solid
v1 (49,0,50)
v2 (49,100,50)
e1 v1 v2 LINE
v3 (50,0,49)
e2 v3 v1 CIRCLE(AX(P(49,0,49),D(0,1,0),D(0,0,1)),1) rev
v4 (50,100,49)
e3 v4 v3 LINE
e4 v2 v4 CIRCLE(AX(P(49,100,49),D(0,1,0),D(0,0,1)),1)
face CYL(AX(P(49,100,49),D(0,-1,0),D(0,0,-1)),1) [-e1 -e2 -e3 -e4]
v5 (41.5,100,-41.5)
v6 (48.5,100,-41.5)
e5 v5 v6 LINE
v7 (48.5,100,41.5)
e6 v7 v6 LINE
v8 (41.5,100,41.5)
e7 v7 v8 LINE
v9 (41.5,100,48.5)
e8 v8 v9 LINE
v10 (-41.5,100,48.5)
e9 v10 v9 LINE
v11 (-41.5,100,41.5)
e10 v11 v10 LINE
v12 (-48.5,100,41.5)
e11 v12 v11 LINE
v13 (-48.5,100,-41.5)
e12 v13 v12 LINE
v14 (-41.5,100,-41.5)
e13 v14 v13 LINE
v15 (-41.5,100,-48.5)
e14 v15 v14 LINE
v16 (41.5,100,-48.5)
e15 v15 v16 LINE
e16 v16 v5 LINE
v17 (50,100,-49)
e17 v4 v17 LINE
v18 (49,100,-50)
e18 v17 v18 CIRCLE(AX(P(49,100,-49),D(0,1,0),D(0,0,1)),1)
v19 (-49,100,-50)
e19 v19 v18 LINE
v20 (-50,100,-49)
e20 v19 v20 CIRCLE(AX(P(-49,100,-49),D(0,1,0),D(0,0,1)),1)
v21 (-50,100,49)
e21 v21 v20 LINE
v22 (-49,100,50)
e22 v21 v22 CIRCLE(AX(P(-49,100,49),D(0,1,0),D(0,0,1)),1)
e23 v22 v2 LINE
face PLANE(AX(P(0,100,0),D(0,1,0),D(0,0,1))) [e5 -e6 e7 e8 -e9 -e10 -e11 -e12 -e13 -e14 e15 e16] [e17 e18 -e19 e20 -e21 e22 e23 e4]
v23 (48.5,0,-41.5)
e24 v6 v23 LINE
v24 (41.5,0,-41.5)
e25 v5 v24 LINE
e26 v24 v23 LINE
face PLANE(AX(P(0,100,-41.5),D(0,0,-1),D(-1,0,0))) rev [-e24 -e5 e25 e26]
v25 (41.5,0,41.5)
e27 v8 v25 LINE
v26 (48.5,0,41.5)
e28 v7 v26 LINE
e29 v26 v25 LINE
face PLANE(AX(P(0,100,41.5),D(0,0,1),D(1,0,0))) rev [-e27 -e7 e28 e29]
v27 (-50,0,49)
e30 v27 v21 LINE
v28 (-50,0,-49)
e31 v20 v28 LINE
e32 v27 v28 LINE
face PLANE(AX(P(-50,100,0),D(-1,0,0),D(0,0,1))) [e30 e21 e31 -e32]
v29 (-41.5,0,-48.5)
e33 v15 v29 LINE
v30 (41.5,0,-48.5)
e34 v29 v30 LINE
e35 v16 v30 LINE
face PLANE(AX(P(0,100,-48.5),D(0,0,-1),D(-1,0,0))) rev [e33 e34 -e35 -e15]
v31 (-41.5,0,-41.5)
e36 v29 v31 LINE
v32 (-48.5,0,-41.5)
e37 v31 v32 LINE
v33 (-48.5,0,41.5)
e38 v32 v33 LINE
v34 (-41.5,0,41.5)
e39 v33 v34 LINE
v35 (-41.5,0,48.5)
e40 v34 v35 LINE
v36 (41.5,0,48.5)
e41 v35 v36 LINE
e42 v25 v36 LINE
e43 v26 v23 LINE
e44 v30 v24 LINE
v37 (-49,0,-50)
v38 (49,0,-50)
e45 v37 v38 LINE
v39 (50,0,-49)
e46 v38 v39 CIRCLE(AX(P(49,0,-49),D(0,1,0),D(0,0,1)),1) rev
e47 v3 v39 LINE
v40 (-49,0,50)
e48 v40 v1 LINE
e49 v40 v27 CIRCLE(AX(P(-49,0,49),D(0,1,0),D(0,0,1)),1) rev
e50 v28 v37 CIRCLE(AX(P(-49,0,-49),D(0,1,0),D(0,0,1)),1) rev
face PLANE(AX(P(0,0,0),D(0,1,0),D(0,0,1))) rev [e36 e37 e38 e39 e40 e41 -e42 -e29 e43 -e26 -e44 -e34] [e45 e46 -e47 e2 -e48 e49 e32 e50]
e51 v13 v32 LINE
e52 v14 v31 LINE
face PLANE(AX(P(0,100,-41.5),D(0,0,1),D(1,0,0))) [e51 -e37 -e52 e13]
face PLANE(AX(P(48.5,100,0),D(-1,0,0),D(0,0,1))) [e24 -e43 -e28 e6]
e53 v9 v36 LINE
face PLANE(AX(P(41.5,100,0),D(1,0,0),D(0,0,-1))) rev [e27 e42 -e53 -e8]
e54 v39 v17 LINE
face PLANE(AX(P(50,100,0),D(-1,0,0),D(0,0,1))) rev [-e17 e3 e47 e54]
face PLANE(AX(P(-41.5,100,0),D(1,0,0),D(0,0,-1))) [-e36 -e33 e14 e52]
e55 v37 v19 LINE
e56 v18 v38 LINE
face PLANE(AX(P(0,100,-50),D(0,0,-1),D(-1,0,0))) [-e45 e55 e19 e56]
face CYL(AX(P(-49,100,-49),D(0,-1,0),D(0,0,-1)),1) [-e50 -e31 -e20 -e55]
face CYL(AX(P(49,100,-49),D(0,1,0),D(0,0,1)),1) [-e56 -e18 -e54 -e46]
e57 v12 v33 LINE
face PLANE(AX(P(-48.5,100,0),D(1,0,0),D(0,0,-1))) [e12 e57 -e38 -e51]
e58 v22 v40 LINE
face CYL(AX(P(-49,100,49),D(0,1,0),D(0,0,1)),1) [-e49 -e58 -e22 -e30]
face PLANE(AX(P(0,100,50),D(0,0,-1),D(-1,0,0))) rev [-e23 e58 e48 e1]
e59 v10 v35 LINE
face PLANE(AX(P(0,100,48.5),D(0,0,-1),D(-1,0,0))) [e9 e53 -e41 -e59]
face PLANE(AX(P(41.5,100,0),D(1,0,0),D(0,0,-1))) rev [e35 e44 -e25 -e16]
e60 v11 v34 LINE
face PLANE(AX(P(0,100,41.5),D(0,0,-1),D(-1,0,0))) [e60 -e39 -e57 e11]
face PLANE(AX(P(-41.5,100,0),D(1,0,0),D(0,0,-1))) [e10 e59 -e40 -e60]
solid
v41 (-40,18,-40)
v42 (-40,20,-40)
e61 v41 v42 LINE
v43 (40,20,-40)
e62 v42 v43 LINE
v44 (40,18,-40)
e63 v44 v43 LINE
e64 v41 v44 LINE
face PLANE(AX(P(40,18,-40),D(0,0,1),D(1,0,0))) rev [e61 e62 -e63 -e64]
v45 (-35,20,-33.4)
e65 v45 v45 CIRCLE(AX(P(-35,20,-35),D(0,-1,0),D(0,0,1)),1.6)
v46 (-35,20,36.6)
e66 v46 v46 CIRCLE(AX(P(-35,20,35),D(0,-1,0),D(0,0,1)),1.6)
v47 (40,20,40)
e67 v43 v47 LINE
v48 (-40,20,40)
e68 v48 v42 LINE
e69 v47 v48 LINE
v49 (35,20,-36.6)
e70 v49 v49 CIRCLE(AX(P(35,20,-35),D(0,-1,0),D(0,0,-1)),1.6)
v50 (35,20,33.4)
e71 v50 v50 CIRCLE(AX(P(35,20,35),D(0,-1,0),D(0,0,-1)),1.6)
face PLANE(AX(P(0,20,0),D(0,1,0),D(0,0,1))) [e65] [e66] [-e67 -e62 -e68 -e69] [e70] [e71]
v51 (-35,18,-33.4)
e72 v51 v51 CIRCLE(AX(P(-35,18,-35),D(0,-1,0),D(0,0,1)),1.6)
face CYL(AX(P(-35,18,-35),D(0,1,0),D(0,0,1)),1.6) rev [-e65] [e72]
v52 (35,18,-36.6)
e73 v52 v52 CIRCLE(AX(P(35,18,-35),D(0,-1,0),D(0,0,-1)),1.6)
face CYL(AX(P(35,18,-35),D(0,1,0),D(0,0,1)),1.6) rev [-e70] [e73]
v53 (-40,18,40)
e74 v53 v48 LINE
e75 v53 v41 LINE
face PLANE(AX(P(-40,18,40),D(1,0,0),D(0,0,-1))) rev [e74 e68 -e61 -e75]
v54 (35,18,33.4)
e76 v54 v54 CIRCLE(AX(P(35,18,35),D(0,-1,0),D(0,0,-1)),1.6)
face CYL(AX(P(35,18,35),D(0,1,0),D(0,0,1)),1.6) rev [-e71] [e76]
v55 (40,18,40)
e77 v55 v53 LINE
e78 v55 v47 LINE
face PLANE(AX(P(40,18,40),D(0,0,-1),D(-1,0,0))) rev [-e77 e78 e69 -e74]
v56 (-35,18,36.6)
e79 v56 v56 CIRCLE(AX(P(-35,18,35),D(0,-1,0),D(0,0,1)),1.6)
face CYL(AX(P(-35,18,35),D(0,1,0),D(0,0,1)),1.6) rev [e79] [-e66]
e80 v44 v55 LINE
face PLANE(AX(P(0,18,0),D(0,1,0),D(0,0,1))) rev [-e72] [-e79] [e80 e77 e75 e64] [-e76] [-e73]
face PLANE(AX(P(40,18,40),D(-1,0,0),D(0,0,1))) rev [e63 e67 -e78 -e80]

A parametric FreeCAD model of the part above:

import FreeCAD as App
import Part
import Sketcher
from FreeCAD import Vector
Q = App.Units.Quantity


def edges_at(feature, points):
    """Names of the edges that pass closest to the given points."""
    edges = feature.Shape.Edges
    near = lambda p: min(range(len(edges)), key=lambda i: edges[i].distToShape(Part.Vertex(*p))[0])
    return sorted({f"Edge{near(p) + 1}" for p in points})

doc = App.newDocument("Part")
body = doc.addObject("PartDesign::Body", "Body")

sketch1 = doc.addObject("Sketcher::SketchObject", "Sketch")
body.addObject(sketch1)
sketch1.AttachmentSupport = (doc.XZ_Plane, [""])
sketch1.MapMode = "FlatFace"
sketch1.addGeometry(Part.LineSegment(Vector(-50, -50, 0), Vector(-50, 50, 0)), False)
sketch1.addGeometry(Part.LineSegment(Vector(-50, 50, 0), Vector(50, 50, 0)), False)
sketch1.addGeometry(Part.LineSegment(Vector(50, 50, 0), Vector(50, -50, 0)), False)
sketch1.addGeometry(Part.LineSegment(Vector(50, -50, 0), Vector(-50, -50, 0)), False)
sketch1.addGeometry(Part.LineSegment(Vector(42, 42, 0), Vector(42, 48, 0)), False)
sketch1.addGeometry(Part.LineSegment(Vector(42, 48, 0), Vector(-42, 48, 0)), False)
sketch1.addGeometry(Part.LineSegment(Vector(-42, 48, 0), Vector(-42, 42, 0)), False)
sketch1.addGeometry(Part.LineSegment(Vector(-42, 42, 0), Vector(-48, 42, 0)), False)
sketch1.addGeometry(Part.LineSegment(Vector(-48, 42, 0), Vector(-48, -42, 0)), False)
sketch1.addGeometry(Part.LineSegment(Vector(-48, -42, 0), Vector(-42, -42, 0)), False)
sketch1.addGeometry(Part.LineSegment(Vector(-42, -42, 0), Vector(-42, -48, 0)), False)
sketch1.addGeometry(Part.LineSegment(Vector(-42, -48, 0), Vector(42, -48, 0)), False)
sketch1.addGeometry(Part.LineSegment(Vector(42, -48, 0), Vector(42, -42, 0)), False)
sketch1.addGeometry(Part.LineSegment(Vector(42, -42, 0), Vector(48, -42, 0)), False)
sketch1.addGeometry(Part.LineSegment(Vector(48, -42, 0), Vector(48, 42, 0)), False)
sketch1.addGeometry(Part.LineSegment(Vector(48, 42, 0), Vector(42, 42, 0)), False)
sketch1.addConstraint(Sketcher.Constraint("Coincident", 0, 2, 1, 1))
sketch1.addConstraint(Sketcher.Constraint("Coincident", 1, 2, 2, 1))
sketch1.addConstraint(Sketcher.Constraint("Coincident", 2, 2, 3, 1))
sketch1.addConstraint(Sketcher.Constraint("Coincident", 3, 2, 0, 1))
sketch1.addConstraint(Sketcher.Constraint("Coincident", 4, 2, 5, 1))
sketch1.addConstraint(Sketcher.Constraint("Coincident", 5, 2, 6, 1))
sketch1.addConstraint(Sketcher.Constraint("Coincident", 6, 2, 7, 1))
sketch1.addConstraint(Sketcher.Constraint("Coincident", 7, 2, 8, 1))
sketch1.addConstraint(Sketcher.Constraint("Coincident", 8, 2, 9, 1))
sketch1.addConstraint(Sketcher.Constraint("Coincident", 9, 2, 10, 1))
sketch1.addConstraint(Sketcher.Constraint("Coincident", 10, 2, 11, 1))
sketch1.addConstraint(Sketcher.Constraint("Coincident", 11, 2, 12, 1))
sketch1.addConstraint(Sketcher.Constraint("Coincident", 12, 2, 13, 1))
sketch1.addConstraint(Sketcher.Constraint("Coincident", 13, 2, 14, 1))
sketch1.addConstraint(Sketcher.Constraint("Coincident", 14, 2, 15, 1))
sketch1.addConstraint(Sketcher.Constraint("Coincident", 15, 2, 4, 1))
sketch1.addConstraint(Sketcher.Constraint("Vertical", 0))
sketch1.addConstraint(Sketcher.Constraint("Horizontal", 1))
sketch1.addConstraint(Sketcher.Constraint("Vertical", 2))
sketch1.addConstraint(Sketcher.Constraint("Horizontal", 3))
sketch1.addConstraint(Sketcher.Constraint("Vertical", 4))
sketch1.addConstraint(Sketcher.Constraint("Horizontal", 5))
sketch1.addConstraint(Sketcher.Constraint("Vertical", 6))
sketch1.addConstraint(Sketcher.Constraint("Horizontal", 7))
sketch1.addConstraint(Sketcher.Constraint("Vertical", 8))
sketch1.addConstraint(Sketcher.Constraint("Horizontal", 9))
sketch1.addConstraint(Sketcher.Constraint("Vertical", 10))
sketch1.addConstraint(Sketcher.Constraint("Horizontal", 11))
sketch1.addConstraint(Sketcher.Constraint("Vertical", 12))
sketch1.addConstraint(Sketcher.Constraint("Horizontal", 13))
sketch1.addConstraint(Sketcher.Constraint("Vertical", 14))
sketch1.addConstraint(Sketcher.Constraint("Horizontal", 15))
sketch1.addConstraint(Sketcher.Constraint("Symmetric", 0, 2, 2, 2, -1, 1))
sketch1.addConstraint(Sketcher.Constraint("Symmetric", 4, 2, 10, 2, -1, 1))
sketch1.addConstraint(Sketcher.Constraint("Symmetric", 6, 2, 12, 2, -1, 1))
sketch1.addConstraint(Sketcher.Constraint("Symmetric", 8, 2, 14, 2, -1, 1))
sketch1.addConstraint(Sketcher.Constraint("Symmetric", 9, 2, 12, 2, -2))
sketch1.addConstraint(Sketcher.Constraint("Equal", 3, 0))
sketch1.addConstraint(Sketcher.Constraint("Equal", 15, 4))
sketch1.addConstraint(Sketcher.Constraint("Equal", 11, 8))
sketch1.addConstraint(Sketcher.Constraint("DistanceX", 1, 1, 1, 2, Q("100 mm")))
sketch1.addConstraint(Sketcher.Constraint("DistanceX", 5, 2, 5, 1, Q("83 mm")))
sketch1.addConstraint(Sketcher.Constraint("DistanceX", 7, 2, 7, 1, Q("7 mm")))
pad1 = doc.addObject("PartDesign::Pad", "Pad")
body.addObject(pad1)
pad1.Profile = sketch1
pad1.Length = 100
pad1.Reversed = True
doc.recompute()

fillet = doc.addObject("PartDesign::Fillet", "Fillet")
body.addObject(fillet)
fillet.Base = (pad1, edges_at(pad1, [
    (50, 50, -50),
    (50, 50, 50),
    (-50, 50, 50),
    (-50, 50, -50),
]))
fillet.Radius = 1
body2 = doc.addObject("PartDesign::Body", "Body001")

sketch2 = doc.addObject("Sketcher::SketchObject", "Sketch001")
body2.addObject(sketch2)
sketch2.AttachmentSupport = (doc.getObject("XZ_Plane001"), [""])
sketch2.MapMode = "FlatFace"
sketch2.AttachmentOffset = App.Placement(Vector(0, 0, -20), App.Rotation())
sketch2.addGeometry(Part.LineSegment(Vector(40, -40, 0), Vector(40, 40, 0)), False)
sketch2.addGeometry(Part.LineSegment(Vector(40, 40, 0), Vector(-40, 40, 0)), False)
sketch2.addGeometry(Part.LineSegment(Vector(-40, 40, 0), Vector(-40, -40, 0)), False)
sketch2.addGeometry(Part.LineSegment(Vector(-40, -40, 0), Vector(40, -40, 0)), False)
sketch2.addGeometry(Part.Circle(Vector(35, 35, 0), Vector(0, 0, 1), 1.6), False)
sketch2.addGeometry(Part.Circle(Vector(-35, 35, 0), Vector(0, 0, 1), 1.6), False)
sketch2.addGeometry(Part.Circle(Vector(35, -35, 0), Vector(0, 0, 1), 1.6), False)
sketch2.addGeometry(Part.Circle(Vector(-35, -35, 0), Vector(0, 0, 1), 1.6), False)
sketch2.addConstraint(Sketcher.Constraint("Coincident", 0, 2, 1, 1))
sketch2.addConstraint(Sketcher.Constraint("Coincident", 1, 2, 2, 1))
sketch2.addConstraint(Sketcher.Constraint("Coincident", 2, 2, 3, 1))
sketch2.addConstraint(Sketcher.Constraint("Coincident", 3, 2, 0, 1))
sketch2.addConstraint(Sketcher.Constraint("Vertical", 0))
sketch2.addConstraint(Sketcher.Constraint("Horizontal", 1))
sketch2.addConstraint(Sketcher.Constraint("Vertical", 2))
sketch2.addConstraint(Sketcher.Constraint("Horizontal", 3))
sketch2.addConstraint(Sketcher.Constraint("Equal", 4, 5))
sketch2.addConstraint(Sketcher.Constraint("Equal", 5, 6))
sketch2.addConstraint(Sketcher.Constraint("Equal", 6, 7))
sketch2.addConstraint(Sketcher.Constraint("Symmetric", 5, 3, 6, 3, -1, 1))
sketch2.addConstraint(Sketcher.Constraint("Symmetric", 4, 3, 7, 3, -1, 1))
sketch2.addConstraint(Sketcher.Constraint("Symmetric", 0, 2, 2, 2, -1, 1))
sketch2.addConstraint(Sketcher.Constraint("Symmetric", 4, 3, 5, 3, -2))
sketch2.addConstraint(Sketcher.Constraint("Equal", 3, 0))
sketch2.addConstraint(Sketcher.Constraint("Diameter", 4, Q("3.2 mm")))
sketch2.addConstraint(Sketcher.Constraint("DistanceX", 1, 2, 1, 1, Q("80 mm")))
sketch2.addConstraint(Sketcher.Constraint("DistanceX", -1, 1, 4, 3, Q("35 mm")))
sketch2.addConstraint(Sketcher.Constraint("DistanceY", -1, 1, 4, 3, Q("35 mm")))
pad2 = doc.addObject("PartDesign::Pad", "Pad001")
body2.addObject(pad2)
pad2.Profile = sketch2
pad2.Length = 2

doc.recompute()
